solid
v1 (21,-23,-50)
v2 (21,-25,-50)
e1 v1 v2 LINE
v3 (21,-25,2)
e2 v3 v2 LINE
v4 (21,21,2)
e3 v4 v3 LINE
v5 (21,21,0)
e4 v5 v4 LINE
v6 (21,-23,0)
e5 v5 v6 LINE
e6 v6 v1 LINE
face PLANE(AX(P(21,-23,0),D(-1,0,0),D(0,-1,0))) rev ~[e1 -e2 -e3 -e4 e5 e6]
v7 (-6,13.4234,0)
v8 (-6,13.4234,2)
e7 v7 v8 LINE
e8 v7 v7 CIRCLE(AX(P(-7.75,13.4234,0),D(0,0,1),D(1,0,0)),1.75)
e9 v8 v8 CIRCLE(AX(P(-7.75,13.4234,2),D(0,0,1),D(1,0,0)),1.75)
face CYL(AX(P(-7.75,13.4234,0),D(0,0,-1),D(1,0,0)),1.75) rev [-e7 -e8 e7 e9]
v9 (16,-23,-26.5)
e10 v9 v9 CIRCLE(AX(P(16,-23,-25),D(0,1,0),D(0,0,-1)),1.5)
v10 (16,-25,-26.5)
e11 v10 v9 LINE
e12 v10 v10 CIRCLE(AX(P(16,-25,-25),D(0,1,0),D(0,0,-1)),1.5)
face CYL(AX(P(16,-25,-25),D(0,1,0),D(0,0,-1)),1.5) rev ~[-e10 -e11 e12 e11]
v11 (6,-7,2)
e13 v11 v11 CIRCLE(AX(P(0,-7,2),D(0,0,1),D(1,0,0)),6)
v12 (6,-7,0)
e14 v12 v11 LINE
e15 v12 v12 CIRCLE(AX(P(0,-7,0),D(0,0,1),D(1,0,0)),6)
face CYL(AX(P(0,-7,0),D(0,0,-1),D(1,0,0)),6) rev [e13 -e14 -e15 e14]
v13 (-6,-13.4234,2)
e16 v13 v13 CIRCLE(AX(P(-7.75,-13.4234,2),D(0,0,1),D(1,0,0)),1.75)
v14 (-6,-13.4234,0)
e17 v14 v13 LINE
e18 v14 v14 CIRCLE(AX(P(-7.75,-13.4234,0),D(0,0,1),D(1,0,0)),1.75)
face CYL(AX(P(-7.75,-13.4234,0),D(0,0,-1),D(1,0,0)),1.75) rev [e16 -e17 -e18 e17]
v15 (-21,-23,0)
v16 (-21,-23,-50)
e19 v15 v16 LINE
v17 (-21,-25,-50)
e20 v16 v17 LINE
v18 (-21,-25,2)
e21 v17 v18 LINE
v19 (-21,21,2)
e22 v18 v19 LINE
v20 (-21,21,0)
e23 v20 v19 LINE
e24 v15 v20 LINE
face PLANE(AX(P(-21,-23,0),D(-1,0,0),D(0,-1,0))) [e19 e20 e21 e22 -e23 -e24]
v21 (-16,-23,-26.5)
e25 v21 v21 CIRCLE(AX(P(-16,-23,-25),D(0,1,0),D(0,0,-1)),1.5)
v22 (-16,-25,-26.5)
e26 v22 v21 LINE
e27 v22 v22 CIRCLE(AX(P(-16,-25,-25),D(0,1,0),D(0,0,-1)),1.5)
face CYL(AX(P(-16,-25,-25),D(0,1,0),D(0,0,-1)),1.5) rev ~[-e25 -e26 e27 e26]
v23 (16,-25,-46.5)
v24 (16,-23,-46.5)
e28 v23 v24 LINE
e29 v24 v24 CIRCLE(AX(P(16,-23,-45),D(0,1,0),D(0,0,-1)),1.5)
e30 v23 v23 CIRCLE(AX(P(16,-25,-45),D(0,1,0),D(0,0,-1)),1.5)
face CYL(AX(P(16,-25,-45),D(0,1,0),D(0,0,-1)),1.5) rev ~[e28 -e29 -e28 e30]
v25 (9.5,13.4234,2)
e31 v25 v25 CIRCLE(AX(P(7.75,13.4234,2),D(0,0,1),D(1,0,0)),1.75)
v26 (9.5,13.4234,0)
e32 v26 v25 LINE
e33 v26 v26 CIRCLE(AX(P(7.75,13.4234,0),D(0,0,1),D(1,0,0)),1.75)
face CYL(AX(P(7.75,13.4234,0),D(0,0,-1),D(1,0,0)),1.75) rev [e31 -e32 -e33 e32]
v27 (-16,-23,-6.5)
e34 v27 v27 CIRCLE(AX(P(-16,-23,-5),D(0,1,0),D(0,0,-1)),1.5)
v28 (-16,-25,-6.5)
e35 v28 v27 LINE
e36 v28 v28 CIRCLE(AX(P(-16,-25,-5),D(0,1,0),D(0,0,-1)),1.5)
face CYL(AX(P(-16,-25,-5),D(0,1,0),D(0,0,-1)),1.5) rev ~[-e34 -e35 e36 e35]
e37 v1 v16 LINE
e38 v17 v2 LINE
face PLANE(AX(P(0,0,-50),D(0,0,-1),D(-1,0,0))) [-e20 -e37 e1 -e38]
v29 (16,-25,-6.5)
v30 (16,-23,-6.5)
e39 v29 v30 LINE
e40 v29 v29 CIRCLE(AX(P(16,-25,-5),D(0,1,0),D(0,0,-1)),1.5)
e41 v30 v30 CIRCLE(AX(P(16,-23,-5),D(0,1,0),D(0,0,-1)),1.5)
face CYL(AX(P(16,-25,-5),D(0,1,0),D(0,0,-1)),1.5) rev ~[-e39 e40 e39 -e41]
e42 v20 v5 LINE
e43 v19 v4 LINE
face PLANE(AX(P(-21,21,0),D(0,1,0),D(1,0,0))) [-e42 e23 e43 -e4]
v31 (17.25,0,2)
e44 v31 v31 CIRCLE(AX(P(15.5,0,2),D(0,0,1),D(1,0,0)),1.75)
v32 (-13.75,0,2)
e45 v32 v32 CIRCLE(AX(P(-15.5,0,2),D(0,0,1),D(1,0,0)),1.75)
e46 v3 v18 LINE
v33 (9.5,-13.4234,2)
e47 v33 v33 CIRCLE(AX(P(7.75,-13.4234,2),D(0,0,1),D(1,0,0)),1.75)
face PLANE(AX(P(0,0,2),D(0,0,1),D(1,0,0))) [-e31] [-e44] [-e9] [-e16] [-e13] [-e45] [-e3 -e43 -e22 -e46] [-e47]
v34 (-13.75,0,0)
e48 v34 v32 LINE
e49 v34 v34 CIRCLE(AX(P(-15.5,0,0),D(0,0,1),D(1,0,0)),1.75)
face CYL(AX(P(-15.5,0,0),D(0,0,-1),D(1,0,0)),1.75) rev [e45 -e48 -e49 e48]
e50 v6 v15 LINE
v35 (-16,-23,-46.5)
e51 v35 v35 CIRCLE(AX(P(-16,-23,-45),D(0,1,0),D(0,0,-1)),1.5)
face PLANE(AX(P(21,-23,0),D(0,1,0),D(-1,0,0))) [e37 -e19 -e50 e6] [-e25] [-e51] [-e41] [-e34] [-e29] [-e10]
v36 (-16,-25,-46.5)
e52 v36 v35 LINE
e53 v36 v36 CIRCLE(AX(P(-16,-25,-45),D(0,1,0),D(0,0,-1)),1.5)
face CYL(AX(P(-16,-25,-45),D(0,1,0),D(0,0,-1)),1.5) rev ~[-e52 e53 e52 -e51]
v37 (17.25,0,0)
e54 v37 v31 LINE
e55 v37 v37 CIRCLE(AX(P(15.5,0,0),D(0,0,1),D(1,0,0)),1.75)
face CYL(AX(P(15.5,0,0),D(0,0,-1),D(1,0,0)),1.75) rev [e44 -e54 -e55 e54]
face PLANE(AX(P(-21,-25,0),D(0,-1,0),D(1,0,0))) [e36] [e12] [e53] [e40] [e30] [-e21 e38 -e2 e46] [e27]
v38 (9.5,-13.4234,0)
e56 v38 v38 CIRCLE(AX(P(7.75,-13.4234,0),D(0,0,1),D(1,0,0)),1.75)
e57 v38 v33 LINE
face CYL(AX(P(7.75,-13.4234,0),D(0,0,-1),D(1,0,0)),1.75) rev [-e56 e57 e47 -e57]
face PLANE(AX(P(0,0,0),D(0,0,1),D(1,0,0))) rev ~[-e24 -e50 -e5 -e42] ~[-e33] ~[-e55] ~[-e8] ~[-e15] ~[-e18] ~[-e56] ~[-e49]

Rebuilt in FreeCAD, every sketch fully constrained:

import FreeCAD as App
import Part
import Sketcher


def add_polygon(sketch, points):
    """Adds a closed chain of lines whose ends are joined by coincident constraints."""
    first, n = sketch.GeometryCount, len(points)
    for a, b in zip(points, points[1:] + points[:1]):
        sketch.addGeometry(Part.LineSegment(App.Vector(*a, 0), App.Vector(*b, 0)), False)
    for i in range(n):
        sketch.addConstraint(Sketcher.Constraint("Coincident", first + i, 2, first + (i + 1) % n, 1))

doc = App.newDocument("Part")
body = doc.addObject("PartDesign::Body", "Body")

sketch1 = doc.addObject("Sketcher::SketchObject", "Sketch")
body.addObject(sketch1)
sketch1.AttachmentSupport = (doc.XY_Plane, [""])
sketch1.MapMode = "FlatFace"
add_polygon(sketch1, [(21, 21), (-21, 21), (-21, -25), (21, -25)])
sketch1.addGeometry(Part.Circle(App.Vector(-7.8, -13.4, 0), App.Vector(0, 0, 1), 1.8), False)
sketch1.addGeometry(Part.Circle(App.Vector(7.8, -13.4, 0), App.Vector(0, 0, 1), 1.8), False)
sketch1.addGeometry(Part.Circle(App.Vector(0, -7, 0), App.Vector(0, 0, 1), 6), False)
sketch1.addGeometry(Part.Circle(App.Vector(-15.5, 0, 0), App.Vector(0, 0, 1), 1.8), False)
sketch1.addGeometry(Part.Circle(App.Vector(-7.8, 13.4, 0), App.Vector(0, 0, 1), 1.8), False)
sketch1.addGeometry(Part.Circle(App.Vector(15.5, 0, 0), App.Vector(0, 0, 1), 1.8), False)
sketch1.addGeometry(Part.Circle(App.Vector(7.8, 13.4, 0), App.Vector(0, 0, 1), 1.8), False)
sketch1.addConstraint(Sketcher.Constraint("Horizontal", 0))
sketch1.addConstraint(Sketcher.Constraint("Vertical", 1))
sketch1.addConstraint(Sketcher.Constraint("Horizontal", 2))
sketch1.addConstraint(Sketcher.Constraint("Vertical", 3))
sketch1.addConstraint(Sketcher.Constraint("Equal", 4, 5))
sketch1.addConstraint(Sketcher.Constraint("Equal", 5, 7))
sketch1.addConstraint(Sketcher.Constraint("Equal", 7, 8))
sketch1.addConstraint(Sketcher.Constraint("Equal", 8, 9))
sketch1.addConstraint(Sketcher.Constraint("Equal", 9, 10))
sketch1.addConstraint(Sketcher.Constraint("Symmetric", 5, 3, 8, 3, -1, 1))
sketch1.addConstraint(Sketcher.Constraint("Symmetric", 7, 3, 9, 3, -1, 1))
sketch1.addConstraint(Sketcher.Constraint("Symmetric", 4, 3, 10, 3, -1, 1))
sketch1.addConstraint(Sketcher.Constraint("Symmetric", 4, 3, 5, 3, -2))
sketch1.addConstraint(Sketcher.Constraint("PointOnObject", 6, 3, -2))
sketch1.addConstraint(Sketcher.Constraint("PointOnObject", 7, 3, -1))
sketch1.addConstraint(Sketcher.Constraint("Diameter", 6, 12.0))
sketch1.addConstraint(Sketcher.Constraint("Diameter", 4, 3.5))
sketch1.addConstraint(Sketcher.Constraint("DistanceX", 0, 2, 0, 1, 42.0))
sketch1.addConstraint(Sketcher.Constraint("DistanceY", 1, 2, 1, 1, 46.0))
sketch1.addConstraint(Sketcher.Constraint("DistanceY", 6, 3, -1, 1, 7.0))
sketch1.addConstraint(Sketcher.Constraint("DistanceX", 0, 2, -1, 1, 21.0))
sketch1.addConstraint(Sketcher.Constraint("DistanceY", -1, 1, 0, 2, 21.0))
sketch1.addConstraint(Sketcher.Constraint("DistanceX", 7, 3, 9, 3, 31.0))
sketch1.addConstraint(Sketcher.Constraint("DistanceX", 4, 3, 5, 3, 15.5))
sketch1.addConstraint(Sketcher.Constraint("DistanceY", 4, 3, -1, 1, 13.4234))
pad1 = doc.addObject("PartDesign::Pad", "Pad")
body.addObject(pad1)
pad1.Profile = sketch1
pad1.Length = 2

sketch2 = doc.addObject("Sketcher::SketchObject", "Sketch001")
body.addObject(sketch2)
sketch2.AttachmentSupport = (doc.XY_Plane, [""])
sketch2.MapMode = "FlatFace"
add_polygon(sketch2, [(-21, -23), (21, -23), (21, -25), (-21, -25)])
sketch2.addConstraint(Sketcher.Constraint("Horizontal", 0))
sketch2.addConstraint(Sketcher.Constraint("Vertical", 1))
sketch2.addConstraint(Sketcher.Constraint("Horizontal", 2))
sketch2.addConstraint(Sketcher.Constraint("Vertical", 3))
sketch2.addConstraint(Sketcher.Constraint("DistanceY", 1, 2, 1, 1, 2.0))
sketch2.addConstraint(Sketcher.Constraint("DistanceX", 0, 1, 0, 2, 42.0))
sketch2.addConstraint(Sketcher.Constraint("DistanceX", -1, 1, 0, 2, 21.0))
sketch2.addConstraint(Sketcher.Constraint("DistanceY", 0, 2, -1, 1, 23.0))
pad2 = doc.addObject("PartDesign::Pad", "Pad001")
body.addObject(pad2)
pad2.Profile = sketch2
pad2.Length = 50
pad2.Reversed = True

sketch3 = doc.addObject("Sketcher::SketchObject", "Sketch002")
body.addObject(sketch3)
sketch3.AttachmentSupport = (doc.XZ_Plane, [""])
sketch3.MapMode = "FlatFace"
sketch3.AttachmentOffset = App.Placement(App.Vector(0, 0, 25), App.Rotation())
sketch3.addGeometry(Part.Circle(App.Vector(-16, -45, 0), App.Vector(0, 0, 1), 1.5), False)
sketch3.addGeometry(Part.Circle(App.Vector(-16, -25, 0), App.Vector(0, 0, 1), 1.5), False)
sketch3.addGeometry(Part.Circle(App.Vector(-16, -5, 0), App.Vector(0, 0, 1), 1.5), False)
sketch3.addGeometry(Part.Circle(App.Vector(16, -45, 0), App.Vector(0, 0, 1), 1.5), False)
sketch3.addGeometry(Part.Circle(App.Vector(16, -25, 0), App.Vector(0, 0, 1), 1.5), False)
sketch3.addGeometry(Part.Circle(App.Vector(16, -5, 0), App.Vector(0, 0, 1), 1.5), False)
sketch3.addConstraint(Sketcher.Constraint("Equal", 0, 1))
sketch3.addConstraint(Sketcher.Constraint("Equal", 1, 2))
sketch3.addConstraint(Sketcher.Constraint("Equal", 2, 3))
sketch3.addConstraint(Sketcher.Constraint("Equal", 3, 4))
sketch3.addConstraint(Sketcher.Constraint("Equal", 4, 5))
sketch3.addConstraint(Sketcher.Constraint("Symmetric", 0, 3, 3, 3, -2))
sketch3.addConstraint(Sketcher.Constraint("Symmetric", 1, 3, 4, 3, -2))
sketch3.addConstraint(Sketcher.Constraint("Symmetric", 2, 3, 5, 3, -2))
sketch3.addConstraint(Sketcher.Constraint("Vertical", 0, 3, 1, 3))
sketch3.addConstraint(Sketcher.Constraint("Vertical", 1, 3, 2, 3))
sketch3.addConstraint(Sketcher.Constraint("Diameter", 0, 3.0))
sketch3.addConstraint(Sketcher.Constraint("DistanceX", 0, 3, -1, 1, 16.0))
sketch3.addConstraint(Sketcher.Constraint("DistanceY", 0, 3, -1, 1, 45.0))
sketch3.addConstraint(Sketcher.Constraint("DistanceY", 1, 3, -1, 1, 25.0))
sketch3.addConstraint(Sketcher.Constraint("DistanceY", 2, 3, -1, 1, 5.0))
doc.recompute()
hole = doc.addObject("PartDesign::Hole", "Hole")
body.addObject(hole)
hole.Profile = sketch3
hole.ThreadType = "None"
hole.Diameter = 3
hole.DepthType = "ThroughAll"

doc.recompute()
